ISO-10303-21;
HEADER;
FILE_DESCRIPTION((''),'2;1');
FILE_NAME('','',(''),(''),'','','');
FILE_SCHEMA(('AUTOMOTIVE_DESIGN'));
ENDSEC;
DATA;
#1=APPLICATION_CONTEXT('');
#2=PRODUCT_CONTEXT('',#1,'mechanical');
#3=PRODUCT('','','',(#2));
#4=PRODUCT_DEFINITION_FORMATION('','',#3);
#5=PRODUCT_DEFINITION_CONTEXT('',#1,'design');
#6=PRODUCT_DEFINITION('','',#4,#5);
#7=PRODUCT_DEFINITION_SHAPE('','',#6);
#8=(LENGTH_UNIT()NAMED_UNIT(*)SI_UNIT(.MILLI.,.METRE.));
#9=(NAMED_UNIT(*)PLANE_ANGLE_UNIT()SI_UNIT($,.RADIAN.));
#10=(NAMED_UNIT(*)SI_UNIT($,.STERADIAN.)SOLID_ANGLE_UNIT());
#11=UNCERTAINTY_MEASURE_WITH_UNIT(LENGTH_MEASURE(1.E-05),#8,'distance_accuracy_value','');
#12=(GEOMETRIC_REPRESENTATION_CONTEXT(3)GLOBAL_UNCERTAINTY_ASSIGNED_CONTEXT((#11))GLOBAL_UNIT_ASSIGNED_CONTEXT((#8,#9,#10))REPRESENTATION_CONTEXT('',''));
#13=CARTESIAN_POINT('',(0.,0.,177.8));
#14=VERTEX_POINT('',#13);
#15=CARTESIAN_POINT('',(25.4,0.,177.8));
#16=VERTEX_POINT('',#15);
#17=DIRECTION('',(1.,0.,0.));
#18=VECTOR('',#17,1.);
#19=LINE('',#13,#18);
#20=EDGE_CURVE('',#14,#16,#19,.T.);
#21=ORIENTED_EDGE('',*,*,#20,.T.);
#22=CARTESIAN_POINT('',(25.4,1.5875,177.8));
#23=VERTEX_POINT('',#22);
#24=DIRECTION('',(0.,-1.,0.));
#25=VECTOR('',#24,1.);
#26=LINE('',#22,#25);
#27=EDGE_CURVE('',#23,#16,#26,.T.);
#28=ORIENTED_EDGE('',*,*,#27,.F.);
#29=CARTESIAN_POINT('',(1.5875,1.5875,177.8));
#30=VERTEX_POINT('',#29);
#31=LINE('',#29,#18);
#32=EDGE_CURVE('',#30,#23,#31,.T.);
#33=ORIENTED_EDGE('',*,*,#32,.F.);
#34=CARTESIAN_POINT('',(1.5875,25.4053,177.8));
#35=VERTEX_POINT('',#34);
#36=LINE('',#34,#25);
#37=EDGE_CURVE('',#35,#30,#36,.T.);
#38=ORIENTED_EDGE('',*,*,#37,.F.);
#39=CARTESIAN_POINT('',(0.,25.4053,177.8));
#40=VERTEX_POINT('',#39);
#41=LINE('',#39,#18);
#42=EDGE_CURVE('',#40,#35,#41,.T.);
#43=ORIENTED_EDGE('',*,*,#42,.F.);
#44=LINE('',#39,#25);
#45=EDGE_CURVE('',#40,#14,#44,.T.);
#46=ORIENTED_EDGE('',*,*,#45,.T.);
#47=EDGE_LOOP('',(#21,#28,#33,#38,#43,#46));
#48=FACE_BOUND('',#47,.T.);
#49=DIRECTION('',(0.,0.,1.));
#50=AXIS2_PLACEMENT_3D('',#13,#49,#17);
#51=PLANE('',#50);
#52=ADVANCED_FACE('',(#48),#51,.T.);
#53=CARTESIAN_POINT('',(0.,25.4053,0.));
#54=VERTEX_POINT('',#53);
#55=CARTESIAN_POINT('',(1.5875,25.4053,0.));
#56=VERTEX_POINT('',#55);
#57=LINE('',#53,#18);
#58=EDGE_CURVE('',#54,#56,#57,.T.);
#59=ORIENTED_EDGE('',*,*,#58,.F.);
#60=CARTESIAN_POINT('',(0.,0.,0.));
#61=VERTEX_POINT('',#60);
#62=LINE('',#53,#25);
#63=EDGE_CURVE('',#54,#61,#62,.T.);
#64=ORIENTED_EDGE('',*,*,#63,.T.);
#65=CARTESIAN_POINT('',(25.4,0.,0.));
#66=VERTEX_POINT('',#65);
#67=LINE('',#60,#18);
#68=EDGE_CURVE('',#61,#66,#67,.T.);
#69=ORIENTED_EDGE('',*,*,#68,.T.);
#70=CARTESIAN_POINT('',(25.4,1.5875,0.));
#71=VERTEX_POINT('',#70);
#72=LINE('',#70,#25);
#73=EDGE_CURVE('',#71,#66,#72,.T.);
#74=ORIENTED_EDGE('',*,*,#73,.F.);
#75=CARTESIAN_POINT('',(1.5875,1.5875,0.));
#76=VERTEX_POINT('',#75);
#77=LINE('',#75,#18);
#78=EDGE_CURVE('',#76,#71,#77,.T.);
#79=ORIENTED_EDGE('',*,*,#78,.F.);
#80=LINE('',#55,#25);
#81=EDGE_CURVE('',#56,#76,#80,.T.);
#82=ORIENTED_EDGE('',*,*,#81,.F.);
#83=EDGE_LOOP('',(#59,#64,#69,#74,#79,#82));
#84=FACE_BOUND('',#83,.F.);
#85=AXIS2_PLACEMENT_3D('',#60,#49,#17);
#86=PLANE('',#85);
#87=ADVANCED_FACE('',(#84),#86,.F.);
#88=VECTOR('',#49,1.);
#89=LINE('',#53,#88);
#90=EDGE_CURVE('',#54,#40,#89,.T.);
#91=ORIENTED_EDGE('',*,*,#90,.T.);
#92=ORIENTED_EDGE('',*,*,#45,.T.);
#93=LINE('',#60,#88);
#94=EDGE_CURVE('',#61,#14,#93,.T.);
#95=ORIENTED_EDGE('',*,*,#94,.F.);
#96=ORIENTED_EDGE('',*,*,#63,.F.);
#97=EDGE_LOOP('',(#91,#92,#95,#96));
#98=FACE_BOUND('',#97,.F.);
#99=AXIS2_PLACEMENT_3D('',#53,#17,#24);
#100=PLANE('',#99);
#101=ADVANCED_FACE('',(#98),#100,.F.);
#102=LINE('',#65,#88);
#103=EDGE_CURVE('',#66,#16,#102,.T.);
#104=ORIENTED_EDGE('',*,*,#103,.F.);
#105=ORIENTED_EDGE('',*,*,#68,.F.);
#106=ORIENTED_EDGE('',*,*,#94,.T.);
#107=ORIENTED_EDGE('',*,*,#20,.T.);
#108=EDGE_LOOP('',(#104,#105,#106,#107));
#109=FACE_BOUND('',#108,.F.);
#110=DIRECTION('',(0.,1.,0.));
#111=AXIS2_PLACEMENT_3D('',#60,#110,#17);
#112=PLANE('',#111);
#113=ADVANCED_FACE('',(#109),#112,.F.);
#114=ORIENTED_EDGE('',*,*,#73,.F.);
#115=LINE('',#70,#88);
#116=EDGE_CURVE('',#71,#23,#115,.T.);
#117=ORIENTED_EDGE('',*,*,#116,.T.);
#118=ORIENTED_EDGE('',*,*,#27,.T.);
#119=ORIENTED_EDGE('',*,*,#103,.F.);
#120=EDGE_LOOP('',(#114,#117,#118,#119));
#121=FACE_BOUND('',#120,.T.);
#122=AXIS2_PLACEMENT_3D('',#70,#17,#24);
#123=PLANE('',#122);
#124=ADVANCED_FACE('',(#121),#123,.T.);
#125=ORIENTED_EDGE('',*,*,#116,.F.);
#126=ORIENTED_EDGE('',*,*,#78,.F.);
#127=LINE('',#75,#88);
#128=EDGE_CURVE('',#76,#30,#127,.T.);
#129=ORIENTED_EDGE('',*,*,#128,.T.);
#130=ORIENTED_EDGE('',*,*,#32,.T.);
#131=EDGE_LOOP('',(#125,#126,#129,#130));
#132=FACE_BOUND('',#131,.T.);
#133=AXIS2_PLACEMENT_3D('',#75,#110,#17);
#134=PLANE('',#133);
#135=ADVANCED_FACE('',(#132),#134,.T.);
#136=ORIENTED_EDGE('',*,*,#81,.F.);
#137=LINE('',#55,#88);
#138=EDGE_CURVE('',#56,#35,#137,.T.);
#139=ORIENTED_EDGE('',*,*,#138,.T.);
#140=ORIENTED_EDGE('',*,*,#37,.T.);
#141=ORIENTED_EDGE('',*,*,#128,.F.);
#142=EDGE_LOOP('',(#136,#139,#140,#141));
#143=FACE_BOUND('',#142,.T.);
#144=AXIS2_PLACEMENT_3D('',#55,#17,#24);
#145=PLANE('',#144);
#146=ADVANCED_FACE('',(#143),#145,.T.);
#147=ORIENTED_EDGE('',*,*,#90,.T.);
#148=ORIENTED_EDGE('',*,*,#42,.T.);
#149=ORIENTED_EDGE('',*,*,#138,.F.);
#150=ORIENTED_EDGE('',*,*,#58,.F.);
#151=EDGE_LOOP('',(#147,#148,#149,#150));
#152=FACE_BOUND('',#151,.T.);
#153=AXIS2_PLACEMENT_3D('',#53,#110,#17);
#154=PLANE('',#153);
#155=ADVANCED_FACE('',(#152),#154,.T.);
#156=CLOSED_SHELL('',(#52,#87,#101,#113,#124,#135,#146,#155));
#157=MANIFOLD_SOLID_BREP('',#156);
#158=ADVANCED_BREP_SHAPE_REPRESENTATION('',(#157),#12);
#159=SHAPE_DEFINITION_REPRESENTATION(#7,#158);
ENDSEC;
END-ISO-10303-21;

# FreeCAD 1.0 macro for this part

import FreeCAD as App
import Part
import Sketcher
from FreeCAD import Vector
Q = App.Units.Quantity


def add_polygon(sketch, points):
    """Adds a closed chain of lines whose ends are joined by coincident constraints."""
    first, n = sketch.GeometryCount, len(points)
    for a, b in zip(points, points[1:] + points[:1]):
        sketch.addGeometry(Part.LineSegment(App.Vector(*a, 0), App.Vector(*b, 0)), False)
    for i in range(n):
        sketch.addConstraint(Sketcher.Constraint("Coincident", first + i, 2, first + (i + 1) % n, 1))

doc = App.newDocument("Part")
body = doc.addObject("PartDesign::Body", "Body")

sketch1 = body.newObject("Sketcher::SketchObject", "Sketch")
sketch1.AttachmentSupport = (doc.getObject("XY_Plane"), [""])
sketch1.MapMode = "FlatFace"
add_polygon(sketch1, [(0, 25.4), (0, 0), (25.4, 0), (25.4, 1.6), (1.6, 1.6), (1.6, 25.4)])
sketch1.addConstraint([
    Sketcher.Constraint("Vertical", 0),
    Sketcher.Constraint("Horizontal", 1),
    Sketcher.Constraint("Vertical", 2),
    Sketcher.Constraint("Horizontal", 3),
    Sketcher.Constraint("Vertical", 4),
    Sketcher.Constraint("Horizontal", 5),
    Sketcher.Constraint("Coincident", 0, 2, -1, 1),
    Sketcher.Constraint("Equal", 5, 2),
    Sketcher.Constraint("DistanceX", 1, 1, 1, 2, Q("1 in")),
    Sketcher.Constraint("DistanceX", 3, 2, 3, 1, Q("0.9375 in")),
    Sketcher.Constraint("DistanceY", 0, 2, 0, 1, Q("1.0002 in")),
])
pad1 = body.newObject("PartDesign::Pad", "Pad")
pad1.Profile = sketch1
pad1.Length = Q("7 in")

doc.recompute()
